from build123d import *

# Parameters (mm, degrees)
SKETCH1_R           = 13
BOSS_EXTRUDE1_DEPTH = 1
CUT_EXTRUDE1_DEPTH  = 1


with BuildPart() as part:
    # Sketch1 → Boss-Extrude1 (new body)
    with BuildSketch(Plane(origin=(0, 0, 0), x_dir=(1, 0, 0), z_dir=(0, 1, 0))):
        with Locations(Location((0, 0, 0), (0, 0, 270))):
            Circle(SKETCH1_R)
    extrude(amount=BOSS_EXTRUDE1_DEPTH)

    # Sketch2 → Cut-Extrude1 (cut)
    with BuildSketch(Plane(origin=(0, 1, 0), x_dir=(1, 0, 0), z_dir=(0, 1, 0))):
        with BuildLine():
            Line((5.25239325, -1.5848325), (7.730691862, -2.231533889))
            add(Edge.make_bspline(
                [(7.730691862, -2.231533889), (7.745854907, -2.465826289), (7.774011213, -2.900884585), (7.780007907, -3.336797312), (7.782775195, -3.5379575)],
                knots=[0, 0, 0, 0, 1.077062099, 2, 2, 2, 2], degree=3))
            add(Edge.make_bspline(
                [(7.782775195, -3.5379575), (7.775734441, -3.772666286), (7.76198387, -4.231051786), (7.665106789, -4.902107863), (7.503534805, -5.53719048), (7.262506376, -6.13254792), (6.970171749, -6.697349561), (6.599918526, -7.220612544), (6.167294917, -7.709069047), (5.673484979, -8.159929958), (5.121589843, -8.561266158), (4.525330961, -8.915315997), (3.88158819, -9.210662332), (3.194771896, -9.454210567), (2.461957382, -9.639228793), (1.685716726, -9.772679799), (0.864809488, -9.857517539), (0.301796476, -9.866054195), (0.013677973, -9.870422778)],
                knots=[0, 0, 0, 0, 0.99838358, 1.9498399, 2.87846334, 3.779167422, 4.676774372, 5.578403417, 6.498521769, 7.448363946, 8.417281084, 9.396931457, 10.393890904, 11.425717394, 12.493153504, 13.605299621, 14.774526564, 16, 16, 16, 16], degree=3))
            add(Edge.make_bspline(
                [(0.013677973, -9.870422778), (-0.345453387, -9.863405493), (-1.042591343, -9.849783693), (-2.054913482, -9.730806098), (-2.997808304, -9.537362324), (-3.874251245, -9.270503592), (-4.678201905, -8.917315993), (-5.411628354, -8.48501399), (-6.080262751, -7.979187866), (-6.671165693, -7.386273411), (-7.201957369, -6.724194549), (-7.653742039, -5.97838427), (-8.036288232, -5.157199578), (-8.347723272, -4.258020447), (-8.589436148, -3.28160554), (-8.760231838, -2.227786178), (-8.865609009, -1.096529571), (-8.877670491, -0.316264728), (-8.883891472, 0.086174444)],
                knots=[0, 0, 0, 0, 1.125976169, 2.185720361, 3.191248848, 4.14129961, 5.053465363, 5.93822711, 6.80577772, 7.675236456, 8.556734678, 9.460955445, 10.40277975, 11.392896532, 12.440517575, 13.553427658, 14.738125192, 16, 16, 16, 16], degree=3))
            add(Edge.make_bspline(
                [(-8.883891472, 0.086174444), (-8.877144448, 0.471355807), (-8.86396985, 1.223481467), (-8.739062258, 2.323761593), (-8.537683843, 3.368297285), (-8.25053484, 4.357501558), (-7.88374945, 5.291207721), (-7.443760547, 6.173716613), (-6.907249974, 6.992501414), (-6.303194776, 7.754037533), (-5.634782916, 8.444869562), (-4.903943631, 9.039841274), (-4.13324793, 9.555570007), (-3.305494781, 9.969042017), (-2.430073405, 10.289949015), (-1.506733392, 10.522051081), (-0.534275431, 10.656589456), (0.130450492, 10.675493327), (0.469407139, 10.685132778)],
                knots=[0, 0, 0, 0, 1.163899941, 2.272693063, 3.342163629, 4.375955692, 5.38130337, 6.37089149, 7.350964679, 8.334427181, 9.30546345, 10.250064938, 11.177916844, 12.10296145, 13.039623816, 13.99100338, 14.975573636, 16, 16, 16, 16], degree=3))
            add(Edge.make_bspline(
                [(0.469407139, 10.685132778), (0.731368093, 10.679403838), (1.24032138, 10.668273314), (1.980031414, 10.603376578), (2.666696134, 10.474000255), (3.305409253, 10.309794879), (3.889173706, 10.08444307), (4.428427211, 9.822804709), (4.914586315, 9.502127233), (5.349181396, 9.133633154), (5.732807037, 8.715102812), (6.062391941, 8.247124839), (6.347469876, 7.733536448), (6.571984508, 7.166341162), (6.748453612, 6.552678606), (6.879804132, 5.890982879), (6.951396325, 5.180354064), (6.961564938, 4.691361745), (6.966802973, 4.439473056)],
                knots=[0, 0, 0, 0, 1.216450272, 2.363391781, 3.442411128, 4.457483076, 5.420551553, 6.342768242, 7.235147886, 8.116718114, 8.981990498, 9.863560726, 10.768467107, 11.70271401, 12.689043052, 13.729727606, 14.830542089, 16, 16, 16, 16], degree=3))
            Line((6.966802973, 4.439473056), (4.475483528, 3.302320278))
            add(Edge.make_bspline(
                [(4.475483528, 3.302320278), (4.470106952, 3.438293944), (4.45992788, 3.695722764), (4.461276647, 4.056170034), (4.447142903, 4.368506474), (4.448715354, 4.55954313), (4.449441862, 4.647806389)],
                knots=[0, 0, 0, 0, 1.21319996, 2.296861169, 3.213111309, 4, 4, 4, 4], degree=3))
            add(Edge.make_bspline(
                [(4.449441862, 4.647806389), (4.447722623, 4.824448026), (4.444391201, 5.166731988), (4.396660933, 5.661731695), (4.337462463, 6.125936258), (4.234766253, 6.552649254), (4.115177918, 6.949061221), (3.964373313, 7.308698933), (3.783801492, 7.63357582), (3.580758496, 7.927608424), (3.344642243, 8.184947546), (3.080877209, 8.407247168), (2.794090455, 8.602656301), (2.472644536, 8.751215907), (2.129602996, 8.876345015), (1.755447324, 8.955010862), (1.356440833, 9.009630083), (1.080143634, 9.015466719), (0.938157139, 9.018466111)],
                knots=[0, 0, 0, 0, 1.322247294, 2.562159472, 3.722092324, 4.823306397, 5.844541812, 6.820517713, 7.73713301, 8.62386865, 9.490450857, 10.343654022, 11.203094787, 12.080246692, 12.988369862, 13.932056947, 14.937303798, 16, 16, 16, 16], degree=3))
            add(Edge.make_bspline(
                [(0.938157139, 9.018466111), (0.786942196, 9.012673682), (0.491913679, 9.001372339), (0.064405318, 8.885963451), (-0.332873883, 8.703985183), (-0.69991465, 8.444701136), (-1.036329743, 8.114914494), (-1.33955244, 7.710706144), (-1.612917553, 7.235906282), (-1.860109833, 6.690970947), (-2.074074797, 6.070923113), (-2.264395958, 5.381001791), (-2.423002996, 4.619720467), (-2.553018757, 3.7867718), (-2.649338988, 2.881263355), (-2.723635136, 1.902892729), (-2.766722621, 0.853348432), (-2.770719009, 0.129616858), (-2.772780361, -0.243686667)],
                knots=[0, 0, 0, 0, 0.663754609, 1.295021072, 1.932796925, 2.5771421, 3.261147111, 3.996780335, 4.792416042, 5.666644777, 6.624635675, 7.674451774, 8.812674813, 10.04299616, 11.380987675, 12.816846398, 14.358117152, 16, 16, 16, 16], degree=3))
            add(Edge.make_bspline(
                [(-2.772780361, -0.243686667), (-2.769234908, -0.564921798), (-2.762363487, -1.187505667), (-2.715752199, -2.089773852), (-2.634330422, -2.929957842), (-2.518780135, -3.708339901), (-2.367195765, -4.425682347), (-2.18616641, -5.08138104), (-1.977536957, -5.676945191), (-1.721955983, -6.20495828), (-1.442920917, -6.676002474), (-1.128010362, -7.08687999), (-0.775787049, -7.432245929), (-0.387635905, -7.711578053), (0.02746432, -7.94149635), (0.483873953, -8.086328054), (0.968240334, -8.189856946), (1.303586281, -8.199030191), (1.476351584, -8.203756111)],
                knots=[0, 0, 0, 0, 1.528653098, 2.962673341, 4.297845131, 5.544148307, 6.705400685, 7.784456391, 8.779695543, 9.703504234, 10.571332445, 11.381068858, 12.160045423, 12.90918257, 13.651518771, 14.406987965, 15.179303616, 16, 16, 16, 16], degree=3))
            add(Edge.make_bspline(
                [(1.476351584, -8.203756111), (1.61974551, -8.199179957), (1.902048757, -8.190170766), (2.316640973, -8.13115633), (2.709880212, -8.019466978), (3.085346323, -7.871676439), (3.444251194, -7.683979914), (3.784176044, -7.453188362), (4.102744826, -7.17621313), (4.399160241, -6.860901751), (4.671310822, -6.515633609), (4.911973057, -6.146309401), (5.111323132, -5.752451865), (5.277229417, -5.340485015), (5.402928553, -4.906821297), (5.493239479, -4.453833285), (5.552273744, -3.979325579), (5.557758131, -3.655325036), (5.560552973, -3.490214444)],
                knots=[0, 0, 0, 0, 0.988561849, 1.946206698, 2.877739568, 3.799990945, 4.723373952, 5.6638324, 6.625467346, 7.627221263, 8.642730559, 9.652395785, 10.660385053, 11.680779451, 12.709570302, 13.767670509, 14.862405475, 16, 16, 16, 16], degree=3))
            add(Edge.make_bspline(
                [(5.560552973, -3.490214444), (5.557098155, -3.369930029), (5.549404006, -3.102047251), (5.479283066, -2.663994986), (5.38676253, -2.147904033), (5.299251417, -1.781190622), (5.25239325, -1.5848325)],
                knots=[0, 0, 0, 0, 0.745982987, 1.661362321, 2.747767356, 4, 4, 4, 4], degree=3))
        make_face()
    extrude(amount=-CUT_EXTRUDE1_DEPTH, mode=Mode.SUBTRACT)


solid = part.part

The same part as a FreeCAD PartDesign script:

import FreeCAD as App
import Part
import Sketcher
Q = App.Units.Quantity

doc = App.newDocument("Part")
body = doc.addObject("PartDesign::Body", "Body")

sketch1 = body.newObject("Sketcher::SketchObject", "Sketch")
sketch1.AttachmentSupport = (doc.getObject("XZ_Plane"), [""])
sketch1.MapMode = "FlatFace"
sketch1.addGeometry(Part.Circle(App.Vector(0, 0, 0), App.Vector(0, 0, 1), 13), False)
sketch1.addConstraint(Sketcher.Constraint("Coincident", 0, 3, -1, 1))
sketch1.addConstraint(Sketcher.Constraint("Diameter", 0, Q("26 mm")))
pad1 = body.newObject("PartDesign::Pad", "Pad")
pad1.Profile = sketch1
pad1.Length = 1
pad1.Reversed = True

sketch2 = body.newObject("Sketcher::SketchObject", "Sketch001")
sketch2.AttachmentSupport = (doc.getObject("XZ_Plane"), [""])
sketch2.MapMode = "FlatFace"
sketch2.AttachmentOffset = App.Placement(App.Vector(0, 0, -1), App.Rotation())
sketch2.addGeometry(Part.LineSegment(App.Vector(7.730692, 2.231534, 0), App.Vector(5.252393, 1.584833, 0)), False)
sketch2.addGeometry(Part.BSplineCurve([App.Vector(5.560553, 3.490214, 0), App.Vector(5.557098, 3.36993, 0), App.Vector(5.549404, 3.102047, 0), App.Vector(5.479283, 2.663995, 0), App.Vector(5.386763, 2.147904, 0), App.Vector(5.299251, 1.781191, 0), App.Vector(5.252393, 1.584833, 0)], [4, 1, 1, 1, 4], [0, 0.745982987, 1.661362321, 2.747767356, 4], False, 3, [1, 1, 1, 1, 1, 1, 1], False), False)
sketch2.addGeometry(Part.BSplineCurve([App.Vector(1.476352, 8.203756, 0), App.Vector(1.619746, 8.19918, 0), App.Vector(1.902049, 8.190171, 0), App.Vector(2.316641, 8.131156, 0), App.Vector(2.70988, 8.019467, 0), App.Vector(3.085346, 7.871676, 0), App.Vector(3.444251, 7.68398, 0), App.Vector(3.784176, 7.453188, 0), App.Vector(4.102745, 7.176213, 0), App.Vector(4.39916, 6.860902, 0), App.Vector(4.671311, 6.515634, 0), App.Vector(4.911973, 6.146309, 0), App.Vector(5.111323, 5.752452, 0), App.Vector(5.277229, 5.340485, 0), App.Vector(5.402929, 4.906821, 0), App.Vector(5.493239, 4.453833, 0), App.Vector(5.552274, 3.979326, 0), App.Vector(5.557758, 3.655325, 0), App.Vector(5.560553, 3.490214, 0)], [4, 1, 1, 1, 1, 1, 1, 1, 1, 1, 1, 1, 1, 1, 1, 1, 4], [0, 0.988561849, 1.946206698, 2.877739568, 3.799990945, 4.723373952, 5.6638324, 6.625467346, 7.627221263, 8.642730559, 9.652395785, 10.660385053, 11.680779451, 12.709570302, 13.767670509, 14.862405475, 16], False, 3, [1, 1, 1, 1, 1, 1, 1, 1, 1, 1, 1, 1, 1, 1, 1, 1, 1, 1, 1], False), False)
sketch2.addGeometry(Part.BSplineCurve([App.Vector(-2.77278, 0.243687, 0), App.Vector(-2.769235, 0.564922, 0), App.Vector(-2.762363, 1.187506, 0), App.Vector(-2.715752, 2.089774, 0), App.Vector(-2.63433, 2.929958, 0), App.Vector(-2.51878, 3.70834, 0), App.Vector(-2.367196, 4.425682, 0), App.Vector(-2.186166, 5.081381, 0), App.Vector(-1.977537, 5.676945, 0), App.Vector(-1.721956, 6.204958, 0), App.Vector(-1.442921, 6.676002, 0), App.Vector(-1.12801, 7.08688, 0), App.Vector(-0.775787, 7.432246, 0), App.Vector(-0.387636, 7.711578, 0), App.Vector(0.027464, 7.941496, 0), App.Vector(0.483874, 8.086328, 0), App.Vector(0.96824, 8.189857, 0), App.Vector(1.303586, 8.19903, 0), App.Vector(1.476352, 8.203756, 0)], [4, 1, 1, 1, 1, 1, 1, 1, 1, 1, 1, 1, 1, 1, 1, 1, 4], [0, 1.528653098, 2.962673341, 4.297845131, 5.544148307, 6.705400685, 7.784456391, 8.779695543, 9.703504234, 10.571332445, 11.381068858, 12.160045423, 12.90918257, 13.651518771, 14.406987965, 15.179303616, 16], False, 3, [1, 1, 1, 1, 1, 1, 1, 1, 1, 1, 1, 1, 1, 1, 1, 1, 1, 1, 1], False), False)
sketch2.addGeometry(Part.BSplineCurve([App.Vector(0.938157, -9.018466, 0), App.Vector(0.786942, -9.012674, 0), App.Vector(0.491914, -9.001372, 0), App.Vector(0.064405, -8.885963, 0), App.Vector(-0.332874, -8.703985, 0), App.Vector(-0.699915, -8.444701, 0), App.Vector(-1.03633, -8.114914, 0), App.Vector(-1.339552, -7.710706, 0), App.Vector(-1.612918, -7.235906, 0), App.Vector(-1.86011, -6.690971, 0), App.Vector(-2.074075, -6.070923, 0), App.Vector(-2.264396, -5.381002, 0), App.Vector(-2.423003, -4.61972, 0), App.Vector(-2.553019, -3.786772, 0), App.Vector(-2.649339, -2.881263, 0), App.Vector(-2.723635, -1.902893, 0), App.Vector(-2.766723, -0.853348, 0), App.Vector(-2.770719, -0.129617, 0), App.Vector(-2.77278, 0.243687, 0)], [4, 1, 1, 1, 1, 1, 1, 1, 1, 1, 1, 1, 1, 1, 1, 1, 4], [0, 0.663754609, 1.295021072, 1.932796925, 2.5771421, 3.261147111, 3.996780335, 4.792416042, 5.666644777, 6.624635675, 7.674451774, 8.812674813, 10.04299616, 11.380987675, 12.816846398, 14.358117152, 16], False, 3, [1, 1, 1, 1, 1, 1, 1, 1, 1, 1, 1, 1, 1, 1, 1, 1, 1, 1, 1], False), False)
sketch2.addGeometry(Part.BSplineCurve([App.Vector(4.449442, -4.647806, 0), App.Vector(4.447723, -4.824448, 0), App.Vector(4.444391, -5.166732, 0), App.Vector(4.396661, -5.661732, 0), App.Vector(4.337462, -6.125936, 0), App.Vector(4.234766, -6.552649, 0), App.Vector(4.115178, -6.949061, 0), App.Vector(3.964373, -7.308699, 0), App.Vector(3.783801, -7.633576, 0), App.Vector(3.580758, -7.927608, 0), App.Vector(3.344642, -8.184948, 0), App.Vector(3.080877, -8.407247, 0), App.Vector(2.79409, -8.602656, 0), App.Vector(2.472645, -8.751216, 0), App.Vector(2.129603, -8.876345, 0), App.Vector(1.755447, -8.955011, 0), App.Vector(1.356441, -9.00963, 0), App.Vector(1.080144, -9.015467, 0), App.Vector(0.938157, -9.018466, 0)], [4, 1, 1, 1, 1, 1, 1, 1, 1, 1, 1, 1, 1, 1, 1, 1, 4], [0, 1.322247294, 2.562159472, 3.722092324, 4.823306397, 5.844541812, 6.820517713, 7.73713301, 8.62386865, 9.490450857, 10.343654022, 11.203094787, 12.080246692, 12.988369862, 13.932056947, 14.937303798, 16], False, 3, [1, 1, 1, 1, 1, 1, 1, 1, 1, 1, 1, 1, 1, 1, 1, 1, 1, 1, 1], False), False)
sketch2.addGeometry(Part.BSplineCurve([App.Vector(4.475484, -3.30232, 0), App.Vector(4.470107, -3.438294, 0), App.Vector(4.459928, -3.695723, 0), App.Vector(4.461277, -4.05617, 0), App.Vector(4.447143, -4.368506, 0), App.Vector(4.448715, -4.559543, 0), App.Vector(4.449442, -4.647806, 0)], [4, 1, 1, 1, 4], [0, 1.21319996, 2.296861169, 3.213111309, 4], False, 3, [1, 1, 1, 1, 1, 1, 1], False), False)
sketch2.addGeometry(Part.LineSegment(App.Vector(4.475484, -3.30232, 0), App.Vector(6.966803, -4.439473, 0)), False)
sketch2.addGeometry(Part.BSplineCurve([App.Vector(0.469407, -10.685133, 0), App.Vector(0.731368, -10.679404, 0), App.Vector(1.240321, -10.668273, 0), App.Vector(1.980031, -10.603377, 0), App.Vector(2.666696, -10.474, 0), App.Vector(3.305409, -10.309795, 0), App.Vector(3.889174, -10.084443, 0), App.Vector(4.428427, -9.822805, 0), App.Vector(4.914586, -9.502127, 0), App.Vector(5.349181, -9.133633, 0), App.Vector(5.732807, -8.715103, 0), App.Vector(6.062392, -8.247125, 0), App.Vector(6.34747, -7.733536, 0), App.Vector(6.571985, -7.166341, 0), App.Vector(6.748454, -6.552679, 0), App.Vector(6.879804, -5.890983, 0), App.Vector(6.951396, -5.180354, 0), App.Vector(6.961565, -4.691362, 0), App.Vector(6.966803, -4.439473, 0)], [4, 1, 1, 1, 1, 1, 1, 1, 1, 1, 1, 1, 1, 1, 1, 1, 4], [0, 1.216450272, 2.363391781, 3.442411128, 4.457483076, 5.420551553, 6.342768242, 7.235147886, 8.116718114, 8.981990498, 9.863560726, 10.768467107, 11.70271401, 12.689043052, 13.729727606, 14.830542089, 16], False, 3, [1, 1, 1, 1, 1, 1, 1, 1, 1, 1, 1, 1, 1, 1, 1, 1, 1, 1, 1], False), False)
sketch2.addGeometry(Part.BSplineCurve([App.Vector(-8.883891, -0.086174, 0), App.Vector(-8.877144, -0.471356, 0), App.Vector(-8.86397, -1.223481, 0), App.Vector(-8.739062, -2.323762, 0), App.Vector(-8.537684, -3.368297, 0), App.Vector(-8.250535, -4.357502, 0), App.Vector(-7.883749, -5.291208, 0), App.Vector(-7.443761, -6.173717, 0), App.Vector(-6.90725, -6.992501, 0), App.Vector(-6.303195, -7.754038, 0), App.Vector(-5.634783, -8.44487, 0), App.Vector(-4.903944, -9.039841, 0), App.Vector(-4.133248, -9.55557, 0), App.Vector(-3.305495, -9.969042, 0), App.Vector(-2.430073, -10.289949, 0), App.Vector(-1.506733, -10.522051, 0), App.Vector(-0.534275, -10.656589, 0), App.Vector(0.13045, -10.675493, 0), App.Vector(0.469407, -10.685133, 0)], [4, 1, 1, 1, 1, 1, 1, 1, 1, 1, 1, 1, 1, 1, 1, 1, 4], [0, 1.163899941, 2.272693063, 3.342163629, 4.375955692, 5.38130337, 6.37089149, 7.350964679, 8.334427181, 9.30546345, 10.250064938, 11.177916844, 12.10296145, 13.039623816, 13.99100338, 14.975573636, 16], False, 3, [1, 1, 1, 1, 1, 1, 1, 1, 1, 1, 1, 1, 1, 1, 1, 1, 1, 1, 1], False), False)
sketch2.addGeometry(Part.BSplineCurve([App.Vector(0.013678, 9.870423, 0), App.Vector(-0.345453, 9.863405, 0), App.Vector(-1.042591, 9.849784, 0), App.Vector(-2.054913, 9.730806, 0), App.Vector(-2.997808, 9.537362, 0), App.Vector(-3.874251, 9.270504, 0), App.Vector(-4.678202, 8.917316, 0), App.Vector(-5.411628, 8.485014, 0), App.Vector(-6.080263, 7.979188, 0), App.Vector(-6.671166, 7.386273, 0), App.Vector(-7.201957, 6.724195, 0), App.Vector(-7.653742, 5.978384, 0), App.Vector(-8.036288, 5.1572, 0), App.Vector(-8.347723, 4.25802, 0), App.Vector(-8.589436, 3.281606, 0), App.Vector(-8.760232, 2.227786, 0), App.Vector(-8.865609, 1.09653, 0), App.Vector(-8.87767, 0.316265, 0), App.Vector(-8.883891, -0.086174, 0)], [4, 1, 1, 1, 1, 1, 1, 1, 1, 1, 1, 1, 1, 1, 1, 1, 4], [0, 1.125976169, 2.185720361, 3.191248848, 4.14129961, 5.053465363, 5.93822711, 6.80577772, 7.675236456, 8.556734678, 9.460955445, 10.40277975, 11.392896532, 12.440517575, 13.553427658, 14.738125192, 16], False, 3, [1, 1, 1, 1, 1, 1, 1, 1, 1, 1, 1, 1, 1, 1, 1, 1, 1, 1, 1], False), False)
sketch2.addGeometry(Part.BSplineCurve([App.Vector(7.782775, 3.537958, 0), App.Vector(7.775734, 3.772666, 0), App.Vector(7.761984, 4.231052, 0), App.Vector(7.665107, 4.902108, 0), App.Vector(7.503535, 5.53719, 0), App.Vector(7.262506, 6.132548, 0), App.Vector(6.970172, 6.69735, 0), App.Vector(6.599919, 7.220613, 0), App.Vector(6.167295, 7.709069, 0), App.Vector(5.673485, 8.15993, 0), App.Vector(5.12159, 8.561266, 0), App.Vector(4.525331, 8.915316, 0), App.Vector(3.881588, 9.210662, 0), App.Vector(3.194772, 9.454211, 0), App.Vector(2.461957, 9.639229, 0), App.Vector(1.685717, 9.77268, 0), App.Vector(0.864809, 9.857518, 0), App.Vector(0.301796, 9.866054, 0), App.Vector(0.013678, 9.870423, 0)], [4, 1, 1, 1, 1, 1, 1, 1, 1, 1, 1, 1, 1, 1, 1, 1, 4], [0, 0.99838358, 1.9498399, 2.87846334, 3.779167422, 4.676774372, 5.578403417, 6.498521769, 7.448363946, 8.417281084, 9.396931457, 10.393890904, 11.425717394, 12.493153504, 13.605299621, 14.774526564, 16], False, 3, [1, 1, 1, 1, 1, 1, 1, 1, 1, 1, 1, 1, 1, 1, 1, 1, 1, 1, 1], False), False)
sketch2.addGeometry(Part.BSplineCurve([App.Vector(7.730692, 2.231534, 0), App.Vector(7.745855, 2.465826, 0), App.Vector(7.774011, 2.900885, 0), App.Vector(7.780008, 3.336797, 0), App.Vector(7.782775, 3.537958, 0)], [4, 1, 4], [0, 1.077062099, 2], False, 3, [1, 1, 1, 1, 1], False), False)
sketch2.addConstraint(Sketcher.Constraint("Block", 1))
sketch2.addConstraint(Sketcher.Constraint("Block", 2))
sketch2.addConstraint(Sketcher.Constraint("Block", 3))
sketch2.addConstraint(Sketcher.Constraint("Block", 4))
sketch2.addConstraint(Sketcher.Constraint("Block", 5))
sketch2.addConstraint(Sketcher.Constraint("Block", 6))
sketch2.addConstraint(Sketcher.Constraint("Block", 8))
sketch2.addConstraint(Sketcher.Constraint("Block", 9))
sketch2.addConstraint(Sketcher.Constraint("Block", 10))
sketch2.addConstraint(Sketcher.Constraint("Block", 11))
sketch2.addConstraint(Sketcher.Constraint("Block", 12))
sketch2.addConstraint(Sketcher.Constraint("Coincident", 0, 2, 1, 2))
sketch2.addConstraint(Sketcher.Constraint("Coincident", 6, 1, 7, 1))
sketch2.addConstraint(Sketcher.Constraint("Coincident", 7, 2, 8, 2))
sketch2.addConstraint(Sketcher.Constraint("Coincident", 12, 1, 0, 1))
pocket1 = body.newObject("PartDesign::Pocket", "Pocket")
pocket1.Profile = sketch2
pocket1.Length = 1
pocket1.Reversed = True

doc.recompute()
